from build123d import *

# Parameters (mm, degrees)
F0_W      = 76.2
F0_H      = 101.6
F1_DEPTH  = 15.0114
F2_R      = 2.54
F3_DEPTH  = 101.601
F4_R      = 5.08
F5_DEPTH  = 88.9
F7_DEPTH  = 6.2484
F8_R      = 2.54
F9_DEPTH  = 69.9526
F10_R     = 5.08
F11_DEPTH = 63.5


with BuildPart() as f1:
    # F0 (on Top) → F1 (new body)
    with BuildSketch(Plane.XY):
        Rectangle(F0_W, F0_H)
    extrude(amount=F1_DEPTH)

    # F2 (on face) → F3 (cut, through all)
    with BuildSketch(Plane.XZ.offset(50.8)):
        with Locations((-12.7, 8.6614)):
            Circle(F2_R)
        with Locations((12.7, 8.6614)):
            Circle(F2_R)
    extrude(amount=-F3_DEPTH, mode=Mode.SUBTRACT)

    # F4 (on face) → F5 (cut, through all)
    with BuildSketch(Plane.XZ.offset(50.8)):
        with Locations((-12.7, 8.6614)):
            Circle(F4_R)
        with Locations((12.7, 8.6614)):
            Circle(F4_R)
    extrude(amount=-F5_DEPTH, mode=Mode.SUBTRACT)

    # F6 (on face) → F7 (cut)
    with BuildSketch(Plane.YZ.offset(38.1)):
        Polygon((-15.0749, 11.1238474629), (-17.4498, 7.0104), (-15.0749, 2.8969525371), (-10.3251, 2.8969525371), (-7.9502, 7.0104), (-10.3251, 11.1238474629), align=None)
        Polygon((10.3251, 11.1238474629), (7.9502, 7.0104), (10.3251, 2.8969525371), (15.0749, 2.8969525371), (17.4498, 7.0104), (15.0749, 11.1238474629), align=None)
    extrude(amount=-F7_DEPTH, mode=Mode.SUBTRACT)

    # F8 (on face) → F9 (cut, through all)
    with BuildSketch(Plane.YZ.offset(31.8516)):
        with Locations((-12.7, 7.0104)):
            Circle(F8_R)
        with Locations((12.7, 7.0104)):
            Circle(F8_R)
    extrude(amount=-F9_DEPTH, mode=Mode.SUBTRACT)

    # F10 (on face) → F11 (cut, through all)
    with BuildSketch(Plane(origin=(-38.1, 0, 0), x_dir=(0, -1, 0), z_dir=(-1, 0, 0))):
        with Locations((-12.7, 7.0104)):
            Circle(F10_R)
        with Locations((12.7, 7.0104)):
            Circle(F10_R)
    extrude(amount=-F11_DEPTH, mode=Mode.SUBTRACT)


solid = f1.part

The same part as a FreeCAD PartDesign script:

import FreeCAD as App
import Part
import Sketcher
Q = App.Units.Quantity

doc = App.newDocument("Part")
body = doc.addObject("PartDesign::Body", "Body")

sketch1 = doc.addObject("Sketcher::SketchObject", "Sketch")
body.addObject(sketch1)
sketch1.AttachmentSupport = (doc.XY_Plane, [""])
sketch1.MapMode = "FlatFace"
sketch1.addGeometry([
    Part.LineSegment(App.Vector(-38, 51, 0), App.Vector(-38, -51, 0)),
    Part.LineSegment(App.Vector(-38, -51, 0), App.Vector(38, -51, 0)),
    Part.LineSegment(App.Vector(38, -51, 0), App.Vector(38, 51, 0)),
    Part.LineSegment(App.Vector(38, 51, 0), App.Vector(-38, 51, 0)),
], False)
sketch1.addConstraint([
    Sketcher.Constraint("Coincident", 0, 2, 1, 1),
    Sketcher.Constraint("Coincident", 1, 2, 2, 1),
    Sketcher.Constraint("Coincident", 2, 2, 3, 1),
    Sketcher.Constraint("Coincident", 3, 2, 0, 1),
    Sketcher.Constraint("Vertical", 0),
    Sketcher.Constraint("Horizontal", 1),
    Sketcher.Constraint("Vertical", 2),
    Sketcher.Constraint("Horizontal", 3),
    Sketcher.Constraint("Symmetric", 0, 2, 2, 2, -1, 1),
    Sketcher.Constraint("DistanceX", 1, 1, 1, 2, Q("3 in")),
    Sketcher.Constraint("DistanceY", 0, 2, 0, 1, Q("4 in")),
])
pad1 = doc.addObject("PartDesign::Pad", "Pad")
body.addObject(pad1)
pad1.Profile = sketch1
pad1.Length = Q("0.591 in")

sketch2 = doc.addObject("Sketcher::SketchObject", "Sketch001")
body.addObject(sketch2)
sketch2.AttachmentSupport = (doc.XZ_Plane, [""])
sketch2.MapMode = "FlatFace"
sketch2.AttachmentOffset = App.Placement(App.Vector(0, 0, 2 * 25.4), App.Rotation())
sketch2.addGeometry([
    Part.Circle(App.Vector(-12.7, 8.7, 0), App.Vector(0, 0, 1), 2.5),
    Part.Circle(App.Vector(12.7, 8.7, 0), App.Vector(0, 0, 1), 2.5),
], False)
sketch2.addConstraint([
    Sketcher.Constraint("Equal", 0, 1),
    Sketcher.Constraint("Symmetric", 0, 3, 1, 3, -2),
    Sketcher.Constraint("Diameter", 0, Q("0.2 in")),
    Sketcher.Constraint("DistanceX", 0, 3, 1, 3, Q("1 in")),
    Sketcher.Constraint("DistanceY", -1, 1, 0, 3, Q("0.341 in")),
])
pocket1 = doc.addObject("PartDesign::Pocket", "Pocket")
body.addObject(pocket1)
pocket1.Profile = sketch2
pocket1.Type = "ThroughAll"

sketch3 = doc.addObject("Sketcher::SketchObject", "Sketch002")
body.addObject(sketch3)
sketch3.AttachmentSupport = (doc.XZ_Plane, [""])
sketch3.MapMode = "FlatFace"
sketch3.AttachmentOffset = App.Placement(App.Vector(0, 0, 2 * 25.4), App.Rotation())
sketch3.addGeometry([
    Part.Circle(App.Vector(-13, 9, 0), App.Vector(0, 0, 1), 5),
    Part.Circle(App.Vector(13, 9, 0), App.Vector(0, 0, 1), 5),
], False)
sketch3.addConstraint([
    Sketcher.Constraint("Equal", 0, 1),
    Sketcher.Constraint("Symmetric", 0, 3, 1, 3, -2),
    Sketcher.Constraint("Diameter", 0, Q("0.4 in")),
    Sketcher.Constraint("DistanceX", 0, 3, 1, 3, Q("1 in")),
    Sketcher.Constraint("DistanceY", -1, 1, 0, 3, Q("0.341 in")),
])
pocket2 = doc.addObject("PartDesign::Pocket", "Pocket001")
body.addObject(pocket2)
pocket2.Profile = sketch3
pocket2.Length = Q("3.5 in")

sketch4 = doc.addObject("Sketcher::SketchObject", "Sketch003")
body.addObject(sketch4)
sketch4.AttachmentSupport = (doc.YZ_Plane, [""])
sketch4.MapMode = "FlatFace"
sketch4.AttachmentOffset = App.Placement(App.Vector(0, 0, 1.5 * 25.4), App.Rotation())
sketch4.addGeometry([
    Part.LineSegment(App.Vector(-15.1, 11.1, 0), App.Vector(-17.4, 7, 0)),
    Part.LineSegment(App.Vector(-17.4, 7, 0), App.Vector(-15.1, 2.9, 0)),
    Part.LineSegment(App.Vector(-15.1, 2.9, 0), App.Vector(-10.3, 2.9, 0)),
    Part.LineSegment(App.Vector(-10.3, 2.9, 0), App.Vector(-8, 7, 0)),
    Part.LineSegment(App.Vector(-8, 7, 0), App.Vector(-10.3, 11.1, 0)),
    Part.LineSegment(App.Vector(-10.3, 11.1, 0), App.Vector(-15.1, 11.1, 0)),
    Part.LineSegment(App.Vector(10.3, 11.1, 0), App.Vector(8, 7, 0)),
    Part.LineSegment(App.Vector(8, 7, 0), App.Vector(10.3, 2.9, 0)),
    Part.LineSegment(App.Vector(10.3, 2.9, 0), App.Vector(15.1, 2.9, 0)),
    Part.LineSegment(App.Vector(15.1, 2.9, 0), App.Vector(17.4, 7, 0)),
    Part.LineSegment(App.Vector(17.4, 7, 0), App.Vector(15.1, 11.1, 0)),
    Part.LineSegment(App.Vector(15.1, 11.1, 0), App.Vector(10.3, 11.1, 0)),
], False)
sketch4.addConstraint([
    Sketcher.Constraint("Coincident", 0, 2, 1, 1),
    Sketcher.Constraint("Coincident", 1, 2, 2, 1),
    Sketcher.Constraint("Coincident", 2, 2, 3, 1),
    Sketcher.Constraint("Coincident", 3, 2, 4, 1),
    Sketcher.Constraint("Coincident", 4, 2, 5, 1),
    Sketcher.Constraint("Coincident", 5, 2, 0, 1),
    Sketcher.Constraint("Coincident", 6, 2, 7, 1),
    Sketcher.Constraint("Coincident", 7, 2, 8, 1),
    Sketcher.Constraint("Coincident", 8, 2, 9, 1),
    Sketcher.Constraint("Coincident", 9, 2, 10, 1),
    Sketcher.Constraint("Coincident", 10, 2, 11, 1),
    Sketcher.Constraint("Coincident", 11, 2, 6, 1),
    Sketcher.Constraint("Horizontal", 2),
    Sketcher.Constraint("Horizontal", 5),
    Sketcher.Constraint("Horizontal", 8),
    Sketcher.Constraint("Horizontal", 11),
    Sketcher.Constraint("Symmetric", 3, 2, 6, 2, -2),
    Sketcher.Constraint("Symmetric", 2, 2, 7, 2, -2),
    Sketcher.Constraint("Symmetric", 0, 2, 9, 2, -2),
    Sketcher.Constraint("Symmetric", 5, 2, 10, 2, -2),
    Sketcher.Constraint("Parallel", 0, 3),
    Sketcher.Constraint("Parallel", 1, 4),
    Sketcher.Constraint("Parallel", 3, 6),
    Sketcher.Constraint("Parallel", 4, 7),
    Sketcher.Constraint("Parallel", 6, 9),
    Sketcher.Constraint("Horizontal", 0, 2, 3, 2),
    Sketcher.Constraint("Vertical", 2, 2, 4, 2),
    Sketcher.Constraint("Angle", 0, Q("-120 deg")),
    Sketcher.Constraint("DistanceX", 1, 2, 7, 2, Q("1 in")),
    Sketcher.Constraint("DistanceX", 2, 1, 2, 2, Q("0.187 in")),
    Sketcher.Constraint("Distance", 0, Q("0.187 in")),
    Sketcher.Constraint("DistanceY", -1, 1, 0, 2, Q("0.276 in")),
])
pocket3 = doc.addObject("PartDesign::Pocket", "Pocket002")
body.addObject(pocket3)
pocket3.Profile = sketch4
pocket3.Length = Q("0.246 in")

sketch5 = doc.addObject("Sketcher::SketchObject", "Sketch004")
body.addObject(sketch5)
sketch5.AttachmentSupport = (doc.YZ_Plane, [""])
sketch5.MapMode = "FlatFace"
sketch5.AttachmentOffset = App.Placement(App.Vector(0, 0, 1.254 * 25.4), App.Rotation())
sketch5.addGeometry([
    Part.Circle(App.Vector(-12.7, 7, 0), App.Vector(0, 0, 1), 2.5),
    Part.Circle(App.Vector(12.7, 7, 0), App.Vector(0, 0, 1), 2.5),
], False)
sketch5.addConstraint([
    Sketcher.Constraint("Equal", 0, 1),
    Sketcher.Constraint("Symmetric", 0, 3, 1, 3, -2),
    Sketcher.Constraint("Diameter", 0, Q("0.2 in")),
    Sketcher.Constraint("DistanceX", 0, 3, 1, 3, Q("1 in")),
    Sketcher.Constraint("DistanceY", -1, 1, 0, 3, Q("0.276 in")),
])
pocket4 = doc.addObject("PartDesign::Pocket", "Pocket003")
body.addObject(pocket4)
pocket4.Profile = sketch5
pocket4.Type = "ThroughAll"

sketch6 = doc.addObject("Sketcher::SketchObject", "Sketch005")
body.addObject(sketch6)
sketch6.AttachmentSupport = (doc.YZ_Plane, [""])
sketch6.MapMode = "FlatFace"
sketch6.AttachmentOffset = App.Placement(App.Vector(0, 0, -1.5 * 25.4), App.Rotation())
sketch6.addGeometry([
    Part.Circle(App.Vector(13, 7, 0), App.Vector(0, 0, 1), 5),
    Part.Circle(App.Vector(-13, 7, 0), App.Vector(0, 0, 1), 5),
], False)
sketch6.addConstraint([
    Sketcher.Constraint("Equal", 0, 1),
    Sketcher.Constraint("Symmetric", 0, 3, 1, 3, -2),
    Sketcher.Constraint("Diameter", 0, Q("0.4 in")),
    Sketcher.Constraint("DistanceX", 1, 3, 0, 3, Q("1 in")),
    Sketcher.Constraint("DistanceY", -1, 1, 0, 3, Q("0.276 in")),
])
pocket5 = doc.addObject("PartDesign::Pocket", "Pocket004")
body.addObject(pocket5)
pocket5.Profile = sketch6
pocket5.Length = Q("2.5 in")
pocket5.Reversed = True

doc.recompute()
